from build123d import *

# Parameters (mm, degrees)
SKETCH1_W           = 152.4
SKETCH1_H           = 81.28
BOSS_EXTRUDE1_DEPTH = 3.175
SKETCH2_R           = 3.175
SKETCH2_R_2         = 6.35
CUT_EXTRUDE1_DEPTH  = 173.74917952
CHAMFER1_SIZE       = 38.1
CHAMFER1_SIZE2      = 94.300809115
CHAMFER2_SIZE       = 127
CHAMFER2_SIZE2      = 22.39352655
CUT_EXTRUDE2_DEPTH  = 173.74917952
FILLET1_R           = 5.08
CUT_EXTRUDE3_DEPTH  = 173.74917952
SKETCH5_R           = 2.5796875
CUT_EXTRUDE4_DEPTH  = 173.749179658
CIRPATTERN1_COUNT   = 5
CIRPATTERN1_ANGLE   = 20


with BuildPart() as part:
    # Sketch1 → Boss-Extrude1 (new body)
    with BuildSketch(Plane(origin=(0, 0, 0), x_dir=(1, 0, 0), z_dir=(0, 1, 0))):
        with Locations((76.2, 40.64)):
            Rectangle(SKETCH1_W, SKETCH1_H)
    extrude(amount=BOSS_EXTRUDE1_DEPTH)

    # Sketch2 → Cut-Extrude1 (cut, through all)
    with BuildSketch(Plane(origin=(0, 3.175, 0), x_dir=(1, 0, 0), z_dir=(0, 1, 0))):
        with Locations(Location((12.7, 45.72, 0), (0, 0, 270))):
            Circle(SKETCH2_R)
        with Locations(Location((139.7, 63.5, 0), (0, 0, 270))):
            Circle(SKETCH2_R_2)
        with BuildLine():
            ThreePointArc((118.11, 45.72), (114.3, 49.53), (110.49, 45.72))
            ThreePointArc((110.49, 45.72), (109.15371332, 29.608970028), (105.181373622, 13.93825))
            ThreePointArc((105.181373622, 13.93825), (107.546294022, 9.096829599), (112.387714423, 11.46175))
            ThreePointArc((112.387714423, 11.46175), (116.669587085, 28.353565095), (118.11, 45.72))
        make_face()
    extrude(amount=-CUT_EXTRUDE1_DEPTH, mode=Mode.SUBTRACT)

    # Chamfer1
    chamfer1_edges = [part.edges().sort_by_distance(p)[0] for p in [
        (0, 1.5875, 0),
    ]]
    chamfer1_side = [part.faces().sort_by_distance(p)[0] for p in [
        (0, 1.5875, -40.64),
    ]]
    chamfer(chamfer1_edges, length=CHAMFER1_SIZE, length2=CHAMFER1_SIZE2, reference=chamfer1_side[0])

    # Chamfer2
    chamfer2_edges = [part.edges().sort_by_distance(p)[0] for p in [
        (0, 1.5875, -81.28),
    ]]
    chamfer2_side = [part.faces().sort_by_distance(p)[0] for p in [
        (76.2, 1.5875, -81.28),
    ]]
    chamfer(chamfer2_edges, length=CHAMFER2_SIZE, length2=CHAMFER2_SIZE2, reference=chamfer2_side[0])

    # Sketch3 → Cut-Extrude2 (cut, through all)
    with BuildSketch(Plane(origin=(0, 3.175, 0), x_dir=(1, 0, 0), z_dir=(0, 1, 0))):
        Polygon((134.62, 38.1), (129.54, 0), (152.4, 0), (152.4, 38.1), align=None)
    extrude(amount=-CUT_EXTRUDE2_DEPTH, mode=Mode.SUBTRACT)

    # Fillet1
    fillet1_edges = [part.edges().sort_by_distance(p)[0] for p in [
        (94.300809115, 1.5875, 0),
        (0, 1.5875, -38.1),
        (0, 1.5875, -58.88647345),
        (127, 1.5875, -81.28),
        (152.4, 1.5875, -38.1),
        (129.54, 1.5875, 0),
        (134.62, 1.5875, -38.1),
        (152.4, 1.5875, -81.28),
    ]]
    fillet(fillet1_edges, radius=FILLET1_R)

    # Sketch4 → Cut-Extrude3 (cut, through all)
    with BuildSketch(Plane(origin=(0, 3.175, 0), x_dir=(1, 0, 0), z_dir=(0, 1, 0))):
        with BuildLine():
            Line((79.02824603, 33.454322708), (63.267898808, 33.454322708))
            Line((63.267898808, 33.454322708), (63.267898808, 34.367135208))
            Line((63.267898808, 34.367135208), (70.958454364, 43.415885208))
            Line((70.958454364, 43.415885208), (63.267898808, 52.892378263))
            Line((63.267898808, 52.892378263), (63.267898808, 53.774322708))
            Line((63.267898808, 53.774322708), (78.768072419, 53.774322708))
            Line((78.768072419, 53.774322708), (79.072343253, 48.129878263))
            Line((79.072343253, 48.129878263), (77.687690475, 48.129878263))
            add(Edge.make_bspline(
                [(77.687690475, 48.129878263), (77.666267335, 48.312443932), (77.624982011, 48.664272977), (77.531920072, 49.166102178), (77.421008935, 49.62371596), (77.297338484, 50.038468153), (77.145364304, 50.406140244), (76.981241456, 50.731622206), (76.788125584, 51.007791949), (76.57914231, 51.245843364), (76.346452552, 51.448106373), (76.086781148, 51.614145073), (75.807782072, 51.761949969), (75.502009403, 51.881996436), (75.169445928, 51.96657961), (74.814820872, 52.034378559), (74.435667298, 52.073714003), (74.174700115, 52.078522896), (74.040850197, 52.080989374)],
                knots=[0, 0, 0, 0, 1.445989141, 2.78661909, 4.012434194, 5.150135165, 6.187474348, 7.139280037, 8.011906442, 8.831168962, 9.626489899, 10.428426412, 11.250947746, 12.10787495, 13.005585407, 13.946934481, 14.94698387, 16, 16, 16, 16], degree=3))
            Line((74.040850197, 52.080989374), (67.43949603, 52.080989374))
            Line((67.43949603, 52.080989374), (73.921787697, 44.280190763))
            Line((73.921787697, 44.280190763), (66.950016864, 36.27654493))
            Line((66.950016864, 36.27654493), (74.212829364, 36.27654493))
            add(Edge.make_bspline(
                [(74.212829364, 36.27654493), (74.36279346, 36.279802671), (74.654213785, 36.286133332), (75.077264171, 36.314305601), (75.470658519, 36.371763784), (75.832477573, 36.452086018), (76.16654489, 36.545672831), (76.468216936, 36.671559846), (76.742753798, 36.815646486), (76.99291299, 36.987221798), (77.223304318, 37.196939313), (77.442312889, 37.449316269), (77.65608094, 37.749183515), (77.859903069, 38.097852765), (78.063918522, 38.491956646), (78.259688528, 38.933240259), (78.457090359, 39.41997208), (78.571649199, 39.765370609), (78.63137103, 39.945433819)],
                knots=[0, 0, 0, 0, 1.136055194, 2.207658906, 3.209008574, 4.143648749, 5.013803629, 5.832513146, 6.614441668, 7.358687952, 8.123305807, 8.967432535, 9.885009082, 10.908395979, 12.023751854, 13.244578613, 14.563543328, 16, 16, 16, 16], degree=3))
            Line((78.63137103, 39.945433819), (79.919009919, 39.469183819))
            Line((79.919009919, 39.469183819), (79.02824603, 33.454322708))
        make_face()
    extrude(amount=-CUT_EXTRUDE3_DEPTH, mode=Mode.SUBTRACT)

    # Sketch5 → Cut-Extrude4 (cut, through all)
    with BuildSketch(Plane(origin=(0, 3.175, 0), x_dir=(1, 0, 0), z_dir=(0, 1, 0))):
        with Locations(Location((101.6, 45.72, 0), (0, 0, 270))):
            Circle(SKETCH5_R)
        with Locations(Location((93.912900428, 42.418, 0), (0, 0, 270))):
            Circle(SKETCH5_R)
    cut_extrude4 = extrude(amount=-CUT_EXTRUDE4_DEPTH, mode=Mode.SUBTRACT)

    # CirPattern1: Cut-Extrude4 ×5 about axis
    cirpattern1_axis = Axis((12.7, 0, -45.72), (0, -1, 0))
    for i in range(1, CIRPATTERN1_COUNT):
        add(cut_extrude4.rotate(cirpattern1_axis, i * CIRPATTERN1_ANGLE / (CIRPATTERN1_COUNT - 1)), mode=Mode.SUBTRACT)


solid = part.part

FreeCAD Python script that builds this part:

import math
import FreeCAD as App
import Part
import Sketcher
Q = App.Units.Quantity


def edges_at(feature, points):
    """Names of the edges that pass closest to the given points."""
    edges = feature.Shape.Edges
    near = lambda p: min(range(len(edges)), key=lambda i: edges[i].distToShape(Part.Vertex(*p))[0])
    return sorted({f"Edge{near(p) + 1}" for p in points})

doc = App.newDocument("Part")
params = doc.addObject("Spreadsheet::Sheet", "Params")
for row, (alias, value) in enumerate([
    ("sketch1_width", "6 in"),
    ("sketch1_height", "3.2 in"),
    ("pad1_length", "0.125 in"),
    ("sketch2_diameter", "0.5 in"),
    ("sketch2_diameter2", "0.25 in"),
    ("sketch2_radius", "0.15 in"),
    ("sketch2_radius2", "3.85 in"),
    ("chamfer_size", "1.5 in"),
    ("chamfer_size2", "94.300809 mm"),
    ("chamfer2_size", "5 in"),
    ("chamfer2_size2", "22.393527 mm"),
    ("sketch3_width", "0.9 in"),
    ("sketch3_width2", "0.7 in"),
    ("sketch3_height", "1.5 in"),
    ("fillet_radius", "0.2 in"),
    ("sketch5_diameter", "0.203125 in"),
], start=1):
    params.set(f"A{row}", alias)
    params.set(f"B{row}", "=" + value)
    params.setAlias(f"B{row}", alias)

body = doc.addObject("PartDesign::Body", "Body")

# Sketch on XZ plane
sketch1 = doc.addObject("Sketcher::SketchObject", "Sketch")
body.addObject(sketch1)
sketch1.AttachmentSupport = (doc.XZ_Plane, [""])
sketch1.MapMode = "FlatFace"
sketch1.addGeometry([
    Part.LineSegment(App.Vector(0, -81, 0), App.Vector(0, 0, 0)),
    Part.LineSegment(App.Vector(0, 0, 0), App.Vector(152, 0, 0)),
    Part.LineSegment(App.Vector(152, 0, 0), App.Vector(152, -81, 0)),
    Part.LineSegment(App.Vector(152, -81, 0), App.Vector(0, -81, 0)),
], False)
sketch1.addConstraint([
    Sketcher.Constraint("Coincident", 0, 2, 1, 1),
    Sketcher.Constraint("Coincident", 1, 2, 2, 1),
    Sketcher.Constraint("Coincident", 2, 2, 3, 1),
    Sketcher.Constraint("Coincident", 3, 2, 0, 1),
    Sketcher.Constraint("Vertical", 0),
    Sketcher.Constraint("Horizontal", 1),
    Sketcher.Constraint("Vertical", 2),
    Sketcher.Constraint("Horizontal", 3),
    Sketcher.Constraint("Coincident", 0, 2, -1, 1),
    Sketcher.Constraint("DistanceX", 1, 1, 1, 2, Q("6 in")),
    Sketcher.Constraint("DistanceY", 0, 1, 0, 2, Q("3.2 in")),
])
sketch1.setExpression("Constraints[9]", "Params.sketch1_width")
sketch1.setExpression("Constraints[10]", "Params.sketch1_height")
pad1 = doc.addObject("PartDesign::Pad", "Pad")
body.addObject(pad1)
pad1.Profile = sketch1
pad1.setExpression("Length", "Params.pad1_length")
pad1.Reversed = True

# Sketch on XZ plane
sketch2 = doc.addObject("Sketcher::SketchObject", "Sketch001")
body.addObject(sketch2)
sketch2.AttachmentSupport = (doc.XZ_Plane, [""])
sketch2.MapMode = "FlatFace"
sketch2.AttachmentOffset = App.Placement(App.Vector(0, 0, -0.125 * 25.4), App.Rotation())
sketch2.addGeometry([
    Part.Circle(App.Vector(12.7, -45.7, 0), App.Vector(0, 0, 1), 3.2),  # 0
    Part.Circle(App.Vector(139.7, -63.5, 0), App.Vector(0, 0, 1), 6.3),  # 1
    Part.ArcOfCircle(Part.Circle(App.Vector(114.3, -45.7, 0), App.Vector(0, 0, 1), 3.8), math.radians(180), math.radians(360)),  # 2
    Part.ArcOfCircle(Part.Circle(App.Vector(12.7, -45.7, 0), App.Vector(0, 0, 1), 97.8), math.radians(0), math.radians(18.97)),  # 3
    Part.ArcOfCircle(Part.Circle(App.Vector(108.8, -12.7, 0), App.Vector(0, 0, 1), 3.8), math.radians(19), math.radians(199)),  # 4
    Part.ArcOfCircle(Part.Circle(App.Vector(12.7, -45.7, 0), App.Vector(0, 0, 1), 105.4), math.radians(0), math.radians(18.97)),  # 5
], False)
sketch2.addConstraint([
    Sketcher.Constraint("Tangent", 2, 1, 3, 1),
    Sketcher.Constraint("Tangent", 3, 2, 4, 2),
    Sketcher.Constraint("Tangent", 4, 1, 5, 2),
    Sketcher.Constraint("Tangent", 5, 1, 2, 2),
    Sketcher.Constraint("Coincident", 3, 3, 0, 3),
    Sketcher.Constraint("Coincident", 5, 3, 0, 3),
    Sketcher.Constraint("Horizontal", 0, 3, 2, 3),
    Sketcher.Constraint("Diameter", 1, Q("0.5 in")),
    Sketcher.Constraint("Diameter", 0, Q("0.25 in")),
    Sketcher.Constraint("Radius", 2, Q("0.15 in")),
    Sketcher.Constraint("Radius", 3, Q("3.85 in")),
    Sketcher.Constraint("DistanceX", 0, 3, 1, 3, Q("5 in")),
    Sketcher.Constraint("DistanceY", 1, 3, 4, 3, Q("2 in")),
    Sketcher.Constraint("DistanceX", -1, 1, 0, 3, Q("0.5 in")),
    Sketcher.Constraint("DistanceY", 0, 3, -1, 1, Q("1.8 in")),
    Sketcher.Constraint("DistanceY", 1, 3, -1, 1, Q("2.5 in")),
])
sketch2.setExpression("Constraints[7]", "Params.sketch2_diameter")
sketch2.setExpression("Constraints[8]", "Params.sketch2_diameter2")
sketch2.setExpression("Constraints[9]", "Params.sketch2_radius")
sketch2.setExpression("Constraints[10]", "Params.sketch2_radius2")
pocket1 = doc.addObject("PartDesign::Pocket", "Pocket")
body.addObject(pocket1)
pocket1.Profile = sketch2
pocket1.Type = "ThroughAll"
pocket1.Reversed = True
doc.recompute()

chamfer = doc.addObject("PartDesign::Chamfer", "Chamfer")
body.addObject(chamfer)
chamfer.Base = (pocket1, edges_at(pocket1, [(0, 1.587, 0)]))
chamfer.ChamferType = "Two distances"
chamfer.setExpression("Size", "Params.chamfer_size")
chamfer.setExpression("Size2", "Params.chamfer_size2")
doc.recompute()

chamfer2 = doc.addObject("PartDesign::Chamfer", "Chamfer001")
body.addObject(chamfer2)
chamfer2.Base = (chamfer, edges_at(chamfer, [(0, 1.587, -81.28)]))
chamfer2.ChamferType = "Two distances"
chamfer2.setExpression("Size", "Params.chamfer2_size")
chamfer2.setExpression("Size2", "Params.chamfer2_size2")
chamfer2.FlipDirection = True

# Sketch on XZ plane
sketch3 = doc.addObject("Sketcher::SketchObject", "Sketch002")
body.addObject(sketch3)
sketch3.AttachmentSupport = (doc.XZ_Plane, [""])
sketch3.MapMode = "FlatFace"
sketch3.AttachmentOffset = App.Placement(App.Vector(0, 0, -0.125 * 25.4), App.Rotation())
sketch3.addGeometry([
    Part.LineSegment(App.Vector(135, -38, 0), App.Vector(130, 0, 0)),
    Part.LineSegment(App.Vector(130, 0, 0), App.Vector(152, 0, 0)),
    Part.LineSegment(App.Vector(152, 0, 0), App.Vector(152, -38, 0)),
    Part.LineSegment(App.Vector(152, -38, 0), App.Vector(135, -38, 0)),
], False)
sketch3.addConstraint([
    Sketcher.Constraint("Coincident", 0, 2, 1, 1),
    Sketcher.Constraint("Coincident", 1, 2, 2, 1),
    Sketcher.Constraint("Coincident", 2, 2, 3, 1),
    Sketcher.Constraint("Coincident", 3, 2, 0, 1),
    Sketcher.Constraint("Horizontal", 1),
    Sketcher.Constraint("Vertical", 2),
    Sketcher.Constraint("Horizontal", 3),
    Sketcher.Constraint("PointOnObject", 0, 2, -1),
    Sketcher.Constraint("DistanceX", 1, 1, 1, 2, Q("0.9 in")),
    Sketcher.Constraint("DistanceX", 3, 2, 3, 1, Q("0.7 in")),
    Sketcher.Constraint("DistanceY", 2, 2, 2, 1, Q("1.5 in")),
    Sketcher.Constraint("DistanceX", -1, 1, 1, 2, Q("6 in")),
])
sketch3.setExpression("Constraints[8]", "Params.sketch3_width")
sketch3.setExpression("Constraints[9]", "Params.sketch3_width2")
sketch3.setExpression("Constraints[10]", "Params.sketch3_height")
pocket2 = doc.addObject("PartDesign::Pocket", "Pocket001")
body.addObject(pocket2)
pocket2.Profile = sketch3
pocket2.Type = "ThroughAll"
pocket2.Reversed = True
doc.recompute()

fillet = doc.addObject("PartDesign::Fillet", "Fillet")
body.addObject(fillet)
fillet.Base = (pocket2, edges_at(pocket2, [
    (94.301, 1.587, 0),
    (0, 1.587, -38.1),
    (0, 1.587, -58.886),
    (127, 1.587, -81.28),
    (152.4, 1.587, -38.1),
    (129.54, 1.587, 0),
    (134.62, 1.587, -38.1),
    (152.4, 1.587, -81.28),
]))
fillet.setExpression("Radius", "Params.fillet_radius")

# Sketch on XZ plane
sketch4 = doc.addObject("Sketcher::SketchObject", "Sketch003")
body.addObject(sketch4)
sketch4.AttachmentSupport = (doc.XZ_Plane, [""])
sketch4.MapMode = "FlatFace"
sketch4.AttachmentOffset = App.Placement(App.Vector(0, 0, -0.125 * 25.4), App.Rotation())
sketch4.addGeometry([
    Part.LineSegment(App.Vector(63.267899, -33.454323, 0), App.Vector(79.028246, -33.454323, 0)),  # 0
    Part.LineSegment(App.Vector(79.028246, -33.454323, 0), App.Vector(79.91901, -39.469184, 0)),  # 1
    Part.LineSegment(App.Vector(79.91901, -39.469184, 0), App.Vector(78.631371, -39.945434, 0)),  # 2
    Part.BSplineCurve([App.Vector(74.212829, -36.276545, 0), App.Vector(74.362793, -36.279803, 0), App.Vector(74.654214, -36.286133, 0), App.Vector(75.077264, -36.314306, 0), App.Vector(75.470659, -36.371764, 0), App.Vector(75.832478, -36.452086, 0), App.Vector(76.166545, -36.545673, 0), App.Vector(76.468217, -36.67156, 0), App.Vector(76.742754, -36.815646, 0), App.Vector(76.992913, -36.987222, 0), App.Vector(77.223304, -37.196939, 0), App.Vector(77.442313, -37.449316, 0), App.Vector(77.656081, -37.749184, 0), App.Vector(77.859903, -38.097853, 0), App.Vector(78.063919, -38.491957, 0), App.Vector(78.259689, -38.93324, 0), App.Vector(78.45709, -39.419972, 0), App.Vector(78.571649, -39.765371, 0), App.Vector(78.631371, -39.945434, 0)], [4, 1, 1, 1, 1, 1, 1, 1, 1, 1, 1, 1, 1, 1, 1, 1, 4], [0, 1.136055194, 2.207658906, 3.209008574, 4.143648749, 5.013803629, 5.832513146, 6.614441668, 7.358687952, 8.123305807, 8.967432535, 9.885009082, 10.908395979, 12.023751854, 13.244578613, 14.563543328, 16], False, 3, [1, 1, 1, 1, 1, 1, 1, 1, 1, 1, 1, 1, 1, 1, 1, 1, 1, 1, 1], False),  # 3
    Part.LineSegment(App.Vector(74.212829, -36.276545, 0), App.Vector(66.950017, -36.276545, 0)),  # 4
    Part.LineSegment(App.Vector(66.950017, -36.276545, 0), App.Vector(73.921788, -44.280191, 0)),  # 5
    Part.LineSegment(App.Vector(73.921788, -44.280191, 0), App.Vector(67.439496, -52.080989, 0)),  # 6
    Part.LineSegment(App.Vector(67.439496, -52.080989, 0), App.Vector(74.04085, -52.080989, 0)),  # 7
    Part.BSplineCurve([App.Vector(77.68769, -48.129878, 0), App.Vector(77.666267, -48.312444, 0), App.Vector(77.624982, -48.664273, 0), App.Vector(77.53192, -49.166102, 0), App.Vector(77.421009, -49.623716, 0), App.Vector(77.297338, -50.038468, 0), App.Vector(77.145364, -50.40614, 0), App.Vector(76.981241, -50.731622, 0), App.Vector(76.788126, -51.007792, 0), App.Vector(76.579142, -51.245843, 0), App.Vector(76.346453, -51.448106, 0), App.Vector(76.086781, -51.614145, 0), App.Vector(75.807782, -51.76195, 0), App.Vector(75.502009, -51.881996, 0), App.Vector(75.169446, -51.96658, 0), App.Vector(74.814821, -52.034379, 0), App.Vector(74.435667, -52.073714, 0), App.Vector(74.1747, -52.078523, 0), App.Vector(74.04085, -52.080989, 0)], [4, 1, 1, 1, 1, 1, 1, 1, 1, 1, 1, 1, 1, 1, 1, 1, 4], [0, 1.445989141, 2.78661909, 4.012434194, 5.150135165, 6.187474348, 7.139280037, 8.011906442, 8.831168962, 9.626489899, 10.428426412, 11.250947746, 12.10787495, 13.005585407, 13.946934481, 14.94698387, 16], False, 3, [1, 1, 1, 1, 1, 1, 1, 1, 1, 1, 1, 1, 1, 1, 1, 1, 1, 1, 1], False),  # 8
    Part.LineSegment(App.Vector(77.68769, -48.129878, 0), App.Vector(79.072343, -48.129878, 0)),  # 9
    Part.LineSegment(App.Vector(79.072343, -48.129878, 0), App.Vector(78.768072, -53.774323, 0)),  # 10
    Part.LineSegment(App.Vector(78.768072, -53.774323, 0), App.Vector(63.267899, -53.774323, 0)),  # 11
    Part.LineSegment(App.Vector(63.267899, -53.774323, 0), App.Vector(63.267899, -52.892378, 0)),  # 12
    Part.LineSegment(App.Vector(63.267899, -52.892378, 0), App.Vector(70.958454, -43.415885, 0)),  # 13
    Part.LineSegment(App.Vector(70.958454, -43.415885, 0), App.Vector(63.267899, -34.367135, 0)),  # 14
    Part.LineSegment(App.Vector(63.267899, -34.367135, 0), App.Vector(63.267899, -33.454323, 0)),  # 15
], False)
sketch4.addConstraint([
    Sketcher.Constraint("Block", 3),
    Sketcher.Constraint("Block", 8),
    Sketcher.Constraint("Coincident", 0, 2, 1, 1),
    Sketcher.Constraint("Coincident", 1, 2, 2, 1),
    Sketcher.Constraint("Coincident", 2, 2, 3, 2),
    Sketcher.Constraint("Coincident", 3, 1, 4, 1),
    Sketcher.Constraint("Coincident", 4, 2, 5, 1),
    Sketcher.Constraint("Coincident", 5, 2, 6, 1),
    Sketcher.Constraint("Coincident", 6, 2, 7, 1),
    Sketcher.Constraint("Coincident", 7, 2, 8, 2),
    Sketcher.Constraint("Coincident", 8, 1, 9, 1),
    Sketcher.Constraint("Coincident", 9, 2, 10, 1),
    Sketcher.Constraint("Coincident", 10, 2, 11, 1),
    Sketcher.Constraint("Coincident", 11, 2, 12, 1),
    Sketcher.Constraint("Coincident", 12, 2, 13, 1),
    Sketcher.Constraint("Coincident", 13, 2, 14, 1),
    Sketcher.Constraint("Coincident", 14, 2, 15, 1),
    Sketcher.Constraint("Coincident", 15, 2, 0, 1),
    Sketcher.Constraint("Horizontal", 0),
    Sketcher.Constraint("Horizontal", 4),
    Sketcher.Constraint("Horizontal", 7),
    Sketcher.Constraint("Horizontal", 9),
    Sketcher.Constraint("Horizontal", 11),
    Sketcher.Constraint("Vertical", 12),
    Sketcher.Constraint("Vertical", 15),
    Sketcher.Constraint("Vertical", 12, 2, 14, 2),
    Sketcher.Constraint("DistanceX", 2, 2, 0, 2, Q("0.015625 in")),
    Sketcher.Constraint("DistanceX", -1, 1, 11, 2, Q("63.267899 mm")),
    Sketcher.Constraint("DistanceY", 6, 2, 5, 2, Q("7.800799 mm")),
    Sketcher.Constraint("DistanceX", 2, 2, 10, 2, Q("0.136701 mm")),
    Sketcher.Constraint("DistanceY", 2, 2, 14, 2, Q("5.578299 mm")),
    Sketcher.Constraint("Distance", 1, Q("6.080462 mm")),
    Sketcher.Constraint("Distance", 2, Q("1.37289 mm")),
    Sketcher.Constraint("Distance", 6, Q("10.142611 mm")),
    Sketcher.Constraint("Distance", 10, Q("5.65264 mm")),
    Sketcher.Constraint("Distance", 13, Q("12.204449 mm")),
    Sketcher.Constraint("DistanceX", 4, 2, 4, 1, Q("7.262812 mm")),
    Sketcher.Constraint("DistanceX", 7, 1, 7, 2, Q("6.601354 mm")),
    Sketcher.Constraint("DistanceX", 9, 1, 9, 2, Q("1.384653 mm")),
    Sketcher.Constraint("DistanceY", 12, 1, 12, 2, Q("0.881944 mm")),
    Sketcher.Constraint("DistanceY", 15, 1, 15, 2, Q("0.912813 mm")),
    Sketcher.Constraint("DistanceY", 13, 2, 4, 2, Q("7.13934 mm")),
])
pocket3 = doc.addObject("PartDesign::Pocket", "Pocket002")
body.addObject(pocket3)
pocket3.Profile = sketch4
pocket3.Type = "ThroughAll"
pocket3.Reversed = True

# Sketch on XZ plane
sketch5 = doc.addObject("Sketcher::SketchObject", "Sketch004")
body.addObject(sketch5)
sketch5.AttachmentSupport = (doc.XZ_Plane, [""])
sketch5.MapMode = "FlatFace"
sketch5.AttachmentOffset = App.Placement(App.Vector(0, 0, -0.125 * 25.4), App.Rotation())
sketch5.addGeometry([
    Part.Circle(App.Vector(101.6, -45.7, 0), App.Vector(0, 0, 1), 2.6),
    Part.Circle(App.Vector(93.9, -42.4, 0), App.Vector(0, 0, 1), 2.6),
], False)
sketch5.addConstraint([
    Sketcher.Constraint("Equal", 0, 1),
    Sketcher.Constraint("Diameter", 0, Q("0.203125 in")),
    Sketcher.Constraint("DistanceX", -1, 1, 0, 3, Q("4 in")),
    Sketcher.Constraint("DistanceY", 0, 3, -1, 1, Q("1.8 in")),
    Sketcher.Constraint("DistanceY", 1, 3, -1, 1, Q("1.67 in")),
    Sketcher.Constraint("DistanceX", -1, 1, 1, 3, Q("93.9129 mm")),
])
sketch5.setExpression("Constraints[1]", "Params.sketch5_diameter")
pocket4 = doc.addObject("PartDesign::Pocket", "Pocket003")
body.addObject(pocket4)
pocket4.Profile = sketch5
pocket4.Type = "ThroughAll"
pocket4.Reversed = True
doc.recompute()

datumline = doc.addObject("PartDesign::Line", "DatumLine")
body.addObject(datumline)
datumline.Placement = App.Placement(App.Vector(12.7, 0, -45.72), App.Rotation(App.Vector(0, 0, 1), App.Vector(0, -1, 0)))
polarpattern = doc.addObject("PartDesign::PolarPattern", "PolarPattern")
body.addObject(polarpattern)
polarpattern.Originals = [pocket4]
polarpattern.Axis = (datumline, [""])
polarpattern.Angle = 20
polarpattern.Occurrences = 5
body.Tip = polarpattern

doc.recompute()
